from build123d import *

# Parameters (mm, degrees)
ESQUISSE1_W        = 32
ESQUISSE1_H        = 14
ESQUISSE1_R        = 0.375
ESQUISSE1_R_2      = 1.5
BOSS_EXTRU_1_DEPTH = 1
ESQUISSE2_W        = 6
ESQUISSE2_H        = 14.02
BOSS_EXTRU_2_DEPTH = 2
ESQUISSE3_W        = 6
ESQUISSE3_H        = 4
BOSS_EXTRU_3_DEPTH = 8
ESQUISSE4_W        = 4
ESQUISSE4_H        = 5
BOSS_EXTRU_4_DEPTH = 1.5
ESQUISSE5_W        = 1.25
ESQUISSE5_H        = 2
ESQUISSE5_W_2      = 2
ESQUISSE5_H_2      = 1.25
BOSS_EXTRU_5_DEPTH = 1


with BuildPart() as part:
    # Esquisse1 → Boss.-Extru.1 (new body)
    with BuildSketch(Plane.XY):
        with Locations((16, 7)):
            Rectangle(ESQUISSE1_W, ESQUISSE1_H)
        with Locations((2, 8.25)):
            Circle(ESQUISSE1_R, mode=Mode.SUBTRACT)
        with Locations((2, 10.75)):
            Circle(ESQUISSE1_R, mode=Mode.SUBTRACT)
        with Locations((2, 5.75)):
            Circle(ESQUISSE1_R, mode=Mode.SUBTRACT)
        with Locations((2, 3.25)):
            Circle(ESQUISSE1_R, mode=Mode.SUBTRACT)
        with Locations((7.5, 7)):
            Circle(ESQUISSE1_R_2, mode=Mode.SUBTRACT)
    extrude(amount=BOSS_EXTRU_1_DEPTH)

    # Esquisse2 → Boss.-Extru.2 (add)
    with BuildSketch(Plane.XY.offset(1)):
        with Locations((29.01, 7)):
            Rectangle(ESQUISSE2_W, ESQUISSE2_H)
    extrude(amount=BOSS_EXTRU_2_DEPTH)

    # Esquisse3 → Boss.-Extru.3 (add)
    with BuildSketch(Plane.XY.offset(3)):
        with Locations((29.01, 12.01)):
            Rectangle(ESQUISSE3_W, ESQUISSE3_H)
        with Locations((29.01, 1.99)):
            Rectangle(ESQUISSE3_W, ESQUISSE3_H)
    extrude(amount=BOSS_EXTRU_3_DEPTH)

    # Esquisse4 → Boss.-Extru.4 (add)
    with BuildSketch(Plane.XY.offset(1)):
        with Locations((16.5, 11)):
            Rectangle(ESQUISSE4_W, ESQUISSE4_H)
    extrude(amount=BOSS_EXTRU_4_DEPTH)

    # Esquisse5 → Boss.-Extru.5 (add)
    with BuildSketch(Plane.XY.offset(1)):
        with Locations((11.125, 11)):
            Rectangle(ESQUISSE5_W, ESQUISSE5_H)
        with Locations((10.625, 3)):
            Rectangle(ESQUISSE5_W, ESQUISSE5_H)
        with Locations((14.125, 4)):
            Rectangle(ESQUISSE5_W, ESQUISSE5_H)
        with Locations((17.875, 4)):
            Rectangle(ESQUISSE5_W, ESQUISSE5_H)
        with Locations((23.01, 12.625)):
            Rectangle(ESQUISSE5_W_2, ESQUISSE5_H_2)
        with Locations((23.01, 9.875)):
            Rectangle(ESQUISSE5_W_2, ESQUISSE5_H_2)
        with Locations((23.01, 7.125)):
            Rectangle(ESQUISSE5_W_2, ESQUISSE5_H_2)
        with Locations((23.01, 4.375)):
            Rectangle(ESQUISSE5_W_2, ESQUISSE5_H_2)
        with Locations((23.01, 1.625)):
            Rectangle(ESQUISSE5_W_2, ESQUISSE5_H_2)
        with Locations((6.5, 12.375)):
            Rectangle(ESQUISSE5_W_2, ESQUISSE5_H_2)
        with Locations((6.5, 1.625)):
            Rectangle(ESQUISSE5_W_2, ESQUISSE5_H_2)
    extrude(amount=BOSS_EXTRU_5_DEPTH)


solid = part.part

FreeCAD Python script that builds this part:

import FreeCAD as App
import Part
import Sketcher
from FreeCAD import Vector
Q = App.Units.Quantity


def add_polygon(sketch, points):
    """Adds a closed chain of lines whose ends are joined by coincident constraints."""
    first, n = sketch.GeometryCount, len(points)
    for a, b in zip(points, points[1:] + points[:1]):
        sketch.addGeometry(Part.LineSegment(App.Vector(*a, 0), App.Vector(*b, 0)), False)
    for i in range(n):
        sketch.addConstraint(Sketcher.Constraint("Coincident", first + i, 2, first + (i + 1) % n, 1))

doc = App.newDocument("Part")
body = doc.addObject("PartDesign::Body", "Body")

sketch1 = body.newObject("Sketcher::SketchObject", "Sketch")
sketch1.AttachmentSupport = (doc.getObject("XY_Plane"), [""])
sketch1.MapMode = "FlatFace"
add_polygon(sketch1, [(0, 14), (0, 0), (32, 0), (32, 14)])
sketch1.addGeometry(Part.Circle(Vector(2, 3.25, 0), Vector(0, 0, 1), 0.38), False)
sketch1.addGeometry(Part.Circle(Vector(2, 5.75, 0), Vector(0, 0, 1), 0.38), False)
sketch1.addGeometry(Part.Circle(Vector(2, 8.25, 0), Vector(0, 0, 1), 0.38), False)
sketch1.addGeometry(Part.Circle(Vector(2, 10.75, 0), Vector(0, 0, 1), 0.38), False)
sketch1.addGeometry(Part.Circle(Vector(7.5, 7, 0), Vector(0, 0, 1), 1.5), False)
sketch1.addConstraint([
    Sketcher.Constraint("Vertical", 0),
    Sketcher.Constraint("Horizontal", 1),
    Sketcher.Constraint("Vertical", 2),
    Sketcher.Constraint("Horizontal", 3),
    Sketcher.Constraint("Coincident", 0, 2, -1, 1),
    Sketcher.Constraint("Equal", 4, 5),
    Sketcher.Constraint("Equal", 5, 6),
    Sketcher.Constraint("Equal", 6, 7),
    Sketcher.Constraint("Vertical", 4, 3, 5, 3),
    Sketcher.Constraint("Vertical", 5, 3, 6, 3),
    Sketcher.Constraint("Vertical", 6, 3, 7, 3),
    Sketcher.Constraint("Diameter", 8, Q("3 mm")),
    Sketcher.Constraint("Diameter", 4, Q("0.75 mm")),
    Sketcher.Constraint("DistanceX", 1, 1, 1, 2, Q("32 mm")),
    Sketcher.Constraint("DistanceY", 0, 2, 0, 1, Q("14 mm")),
    Sketcher.Constraint("DistanceX", -1, 1, 4, 3, Q("2 mm")),
    Sketcher.Constraint("DistanceY", -1, 1, 8, 3, Q("7 mm")),
    Sketcher.Constraint("DistanceY", 4, 3, 6, 3, Q("5 mm")),
    Sketcher.Constraint("DistanceY", 5, 3, 7, 3, Q("5 mm")),
    Sketcher.Constraint("DistanceX", -1, 1, 8, 3, Q("7.5 mm")),
    Sketcher.Constraint("DistanceY", 4, 3, 5, 3, Q("2.5 mm")),
    Sketcher.Constraint("DistanceY", -1, 1, 4, 3, Q("3.25 mm")),
])
pad1 = body.newObject("PartDesign::Pad", "Pad")
pad1.Profile = sketch1
pad1.Length = 1

sketch2 = body.newObject("Sketcher::SketchObject", "Sketch001")
sketch2.AttachmentSupport = (doc.getObject("XY_Plane"), [""])
sketch2.MapMode = "FlatFace"
sketch2.AttachmentOffset = App.Placement(Vector(0, 0, 1), App.Rotation())
add_polygon(sketch2, [(26, 14), (26, 0), (32, 0), (32, 14)])
sketch2.addConstraint([
    Sketcher.Constraint("Vertical", 0),
    Sketcher.Constraint("Horizontal", 1),
    Sketcher.Constraint("Vertical", 2),
    Sketcher.Constraint("Horizontal", 3),
    Sketcher.Constraint("DistanceX", 1, 1, 1, 2, Q("6 mm")),
    Sketcher.Constraint("DistanceY", 0, 2, 0, 1, Q("14.02 mm")),
    Sketcher.Constraint("DistanceX", -1, 1, 0, 2, Q("26.01 mm")),
    Sketcher.Constraint("DistanceY", 0, 2, -1, 1, Q("0.01 mm")),
])
pad2 = body.newObject("PartDesign::Pad", "Pad001")
pad2.Profile = sketch2
pad2.Length = 2

sketch3 = body.newObject("Sketcher::SketchObject", "Sketch002")
sketch3.AttachmentSupport = (doc.getObject("XY_Plane"), [""])
sketch3.MapMode = "FlatFace"
sketch3.AttachmentOffset = App.Placement(Vector(0, 0, 3), App.Rotation())
add_polygon(sketch3, [(26, 14), (26, 10), (32, 10), (32, 14)])
add_polygon(sketch3, [(26, 4), (26, 0), (32, 0), (32, 4)])
sketch3.addConstraint([
    Sketcher.Constraint("Vertical", 0),
    Sketcher.Constraint("Horizontal", 1),
    Sketcher.Constraint("Vertical", 2),
    Sketcher.Constraint("Horizontal", 3),
    Sketcher.Constraint("Vertical", 4),
    Sketcher.Constraint("Horizontal", 5),
    Sketcher.Constraint("Vertical", 6),
    Sketcher.Constraint("Horizontal", 7),
    Sketcher.Constraint("Vertical", 3, 2, 4, 2),
    Sketcher.Constraint("Vertical", 2, 2, 5, 2),
    Sketcher.Constraint("Equal", 2, 4),
    Sketcher.Constraint("DistanceX", 1, 1, 1, 2, Q("6 mm")),
    Sketcher.Constraint("DistanceY", 0, 2, 0, 1, Q("4 mm")),
    Sketcher.Constraint("DistanceX", -1, 1, 0, 2, Q("26.01 mm")),
    Sketcher.Constraint("DistanceY", -1, 1, 0, 2, Q("10.01 mm")),
    Sketcher.Constraint("DistanceY", 4, 2, -1, 1, Q("0.01 mm")),
])
pad3 = body.newObject("PartDesign::Pad", "Pad002")
pad3.Profile = sketch3
pad3.Length = 8

sketch4 = body.newObject("Sketcher::SketchObject", "Sketch003")
sketch4.AttachmentSupport = (doc.getObject("XY_Plane"), [""])
sketch4.MapMode = "FlatFace"
sketch4.AttachmentOffset = App.Placement(Vector(0, 0, 1), App.Rotation())
add_polygon(sketch4, [(14.5, 13.5), (14.5, 8.5), (18.5, 8.5), (18.5, 13.5)])
sketch4.addConstraint([
    Sketcher.Constraint("Vertical", 0),
    Sketcher.Constraint("Horizontal", 1),
    Sketcher.Constraint("Vertical", 2),
    Sketcher.Constraint("Horizontal", 3),
    Sketcher.Constraint("DistanceX", 1, 1, 1, 2, Q("4 mm")),
    Sketcher.Constraint("DistanceY", 0, 2, 0, 1, Q("5 mm")),
    Sketcher.Constraint("DistanceX", -1, 1, 0, 2, Q("14.5 mm")),
    Sketcher.Constraint("DistanceY", -1, 1, 0, 2, Q("8.5 mm")),
])
pad4 = body.newObject("PartDesign::Pad", "Pad003")
pad4.Profile = sketch4
pad4.Length = 1.5

sketch5 = body.newObject("Sketcher::SketchObject", "Sketch004")
sketch5.AttachmentSupport = (doc.getObject("XY_Plane"), [""])
sketch5.MapMode = "FlatFace"
sketch5.AttachmentOffset = App.Placement(Vector(0, 0, 1), App.Rotation())
add_polygon(sketch5, [(10.5, 12), (10.5, 10), (11.8, 10), (11.8, 12)])
add_polygon(sketch5, [(10, 4), (10, 2), (11.2, 2), (11.2, 4)])
add_polygon(sketch5, [(13.5, 5), (13.5, 3), (14.8, 3), (14.8, 5)])
add_polygon(sketch5, [(17.2, 5), (17.2, 3), (18.5, 3), (18.5, 5)])
add_polygon(sketch5, [(22, 13.2), (22, 12), (24, 12), (24, 13.2)])
add_polygon(sketch5, [(22, 10.5), (22, 9.2), (24, 9.2), (24, 10.5)])
add_polygon(sketch5, [(22, 7.8), (22, 6.5), (24, 6.5), (24, 7.8)])
add_polygon(sketch5, [(22, 5), (22, 3.8), (24, 3.8), (24, 5)])
add_polygon(sketch5, [(22, 2.2), (22, 1), (24, 1), (24, 2.2)])
add_polygon(sketch5, [(5.5, 13), (5.5, 11.8), (7.5, 11.8), (7.5, 13)])
add_polygon(sketch5, [(5.5, 2.2), (5.5, 1), (7.5, 1), (7.5, 2.2)])
sketch5.addConstraint([
    Sketcher.Constraint("Vertical", 0),
    Sketcher.Constraint("Horizontal", 1),
    Sketcher.Constraint("Vertical", 2),
    Sketcher.Constraint("Horizontal", 3),
    Sketcher.Constraint("Vertical", 4),
    Sketcher.Constraint("Horizontal", 5),
    Sketcher.Constraint("Vertical", 6),
    Sketcher.Constraint("Horizontal", 7),
    Sketcher.Constraint("Vertical", 8),
    Sketcher.Constraint("Horizontal", 9),
    Sketcher.Constraint("Vertical", 10),
    Sketcher.Constraint("Horizontal", 11),
    Sketcher.Constraint("Vertical", 12),
    Sketcher.Constraint("Horizontal", 13),
    Sketcher.Constraint("Vertical", 14),
    Sketcher.Constraint("Horizontal", 15),
    Sketcher.Constraint("Vertical", 16),
    Sketcher.Constraint("Horizontal", 17),
    Sketcher.Constraint("Vertical", 18),
    Sketcher.Constraint("Horizontal", 19),
    Sketcher.Constraint("Vertical", 20),
    Sketcher.Constraint("Horizontal", 21),
    Sketcher.Constraint("Vertical", 22),
    Sketcher.Constraint("Horizontal", 23),
    Sketcher.Constraint("Vertical", 24),
    Sketcher.Constraint("Horizontal", 25),
    Sketcher.Constraint("Vertical", 26),
    Sketcher.Constraint("Horizontal", 27),
    Sketcher.Constraint("Vertical", 28),
    Sketcher.Constraint("Horizontal", 29),
    Sketcher.Constraint("Vertical", 30),
    Sketcher.Constraint("Horizontal", 31),
    Sketcher.Constraint("Vertical", 32),
    Sketcher.Constraint("Horizontal", 33),
    Sketcher.Constraint("Vertical", 34),
    Sketcher.Constraint("Horizontal", 35),
    Sketcher.Constraint("Vertical", 36),
    Sketcher.Constraint("Horizontal", 37),
    Sketcher.Constraint("Vertical", 38),
    Sketcher.Constraint("Horizontal", 39),
    Sketcher.Constraint("Vertical", 40),
    Sketcher.Constraint("Horizontal", 41),
    Sketcher.Constraint("Vertical", 42),
    Sketcher.Constraint("Horizontal", 43),
    Sketcher.Constraint("Horizontal", 9, 2, 12, 2),
    Sketcher.Constraint("Horizontal", 11, 2, 14, 2),
    Sketcher.Constraint("Horizontal", 3, 2, 16, 2),
    Sketcher.Constraint("Horizontal", 15, 2, 30, 2),
    Sketcher.Constraint("Horizontal", 33, 2, 40, 2),
    Sketcher.Constraint("Horizontal", 35, 2, 42, 2),
    Sketcher.Constraint("Vertical", 19, 2, 20, 2),
    Sketcher.Constraint("Vertical", 18, 2, 21, 2),
    Sketcher.Constraint("Vertical", 23, 2, 24, 2),
    Sketcher.Constraint("Vertical", 22, 2, 25, 2),
    Sketcher.Constraint("Vertical", 27, 2, 28, 2),
    Sketcher.Constraint("Vertical", 26, 2, 29, 2),
    Sketcher.Constraint("Vertical", 31, 2, 32, 2),
    Sketcher.Constraint("Vertical", 30, 2, 33, 2),
    Sketcher.Constraint("Vertical", 39, 2, 40, 2),
    Sketcher.Constraint("Vertical", 38, 2, 41, 2),
    Sketcher.Constraint("Equal", 3, 5),
    Sketcher.Constraint("Equal", 7, 9),
    Sketcher.Constraint("Equal", 11, 13),
    Sketcher.Constraint("Equal", 35, 37),
    Sketcher.Constraint("Equal", 43, 0),
    Sketcher.Constraint("Equal", 2, 4),
    Sketcher.Constraint("Equal", 6, 8),
    Sketcher.Constraint("Equal", 15, 16),
    Sketcher.Constraint("Equal", 18, 20),
    Sketcher.Constraint("Equal", 22, 24),
    Sketcher.Constraint("Equal", 26, 28),
    Sketcher.Constraint("Equal", 30, 32),
    Sketcher.Constraint("Equal", 34, 36),
    Sketcher.Constraint("DistanceX", 17, 1, 17, 2, Q("2 mm")),
    Sketcher.Constraint("DistanceY", -1, 1, 0, 2, Q("10 mm")),
    Sketcher.Constraint("DistanceX", -1, 1, 4, 2, Q("10 mm")),
    Sketcher.Constraint("DistanceY", -1, 1, 4, 2, Q("2 mm")),
    Sketcher.Constraint("DistanceY", -1, 1, 8, 2, Q("3 mm")),
    Sketcher.Constraint("DistanceY", -1, 1, 32, 2, Q("1 mm")),
    Sketcher.Constraint("DistanceY", -1, 1, 38, 2, Q("13 mm")),
    Sketcher.Constraint("DistanceX", 5, 2, 12, 2, Q("6 mm")),
    Sketcher.Constraint("DistanceX", 8, 2, 13, 2, Q("5 mm")),
    Sketcher.Constraint("DistanceY", 20, 2, 19, 2, Q("4 mm")),
    Sketcher.Constraint("DistanceY", 24, 2, 23, 2, Q("4 mm")),
    Sketcher.Constraint("DistanceY", 28, 2, 27, 2, Q("4 mm")),
    Sketcher.Constraint("DistanceX", 36, 2, 3, 2, Q("5 mm")),
    Sketcher.Constraint("DistanceX", 40, 2, 8, 2, Q("8 mm")),
    Sketcher.Constraint("DistanceX", -1, 1, 16, 2, Q("22.01 mm")),
])
pad5 = body.newObject("PartDesign::Pad", "Pad004")
pad5.Profile = sketch5
pad5.Length = 1

doc.recompute()
